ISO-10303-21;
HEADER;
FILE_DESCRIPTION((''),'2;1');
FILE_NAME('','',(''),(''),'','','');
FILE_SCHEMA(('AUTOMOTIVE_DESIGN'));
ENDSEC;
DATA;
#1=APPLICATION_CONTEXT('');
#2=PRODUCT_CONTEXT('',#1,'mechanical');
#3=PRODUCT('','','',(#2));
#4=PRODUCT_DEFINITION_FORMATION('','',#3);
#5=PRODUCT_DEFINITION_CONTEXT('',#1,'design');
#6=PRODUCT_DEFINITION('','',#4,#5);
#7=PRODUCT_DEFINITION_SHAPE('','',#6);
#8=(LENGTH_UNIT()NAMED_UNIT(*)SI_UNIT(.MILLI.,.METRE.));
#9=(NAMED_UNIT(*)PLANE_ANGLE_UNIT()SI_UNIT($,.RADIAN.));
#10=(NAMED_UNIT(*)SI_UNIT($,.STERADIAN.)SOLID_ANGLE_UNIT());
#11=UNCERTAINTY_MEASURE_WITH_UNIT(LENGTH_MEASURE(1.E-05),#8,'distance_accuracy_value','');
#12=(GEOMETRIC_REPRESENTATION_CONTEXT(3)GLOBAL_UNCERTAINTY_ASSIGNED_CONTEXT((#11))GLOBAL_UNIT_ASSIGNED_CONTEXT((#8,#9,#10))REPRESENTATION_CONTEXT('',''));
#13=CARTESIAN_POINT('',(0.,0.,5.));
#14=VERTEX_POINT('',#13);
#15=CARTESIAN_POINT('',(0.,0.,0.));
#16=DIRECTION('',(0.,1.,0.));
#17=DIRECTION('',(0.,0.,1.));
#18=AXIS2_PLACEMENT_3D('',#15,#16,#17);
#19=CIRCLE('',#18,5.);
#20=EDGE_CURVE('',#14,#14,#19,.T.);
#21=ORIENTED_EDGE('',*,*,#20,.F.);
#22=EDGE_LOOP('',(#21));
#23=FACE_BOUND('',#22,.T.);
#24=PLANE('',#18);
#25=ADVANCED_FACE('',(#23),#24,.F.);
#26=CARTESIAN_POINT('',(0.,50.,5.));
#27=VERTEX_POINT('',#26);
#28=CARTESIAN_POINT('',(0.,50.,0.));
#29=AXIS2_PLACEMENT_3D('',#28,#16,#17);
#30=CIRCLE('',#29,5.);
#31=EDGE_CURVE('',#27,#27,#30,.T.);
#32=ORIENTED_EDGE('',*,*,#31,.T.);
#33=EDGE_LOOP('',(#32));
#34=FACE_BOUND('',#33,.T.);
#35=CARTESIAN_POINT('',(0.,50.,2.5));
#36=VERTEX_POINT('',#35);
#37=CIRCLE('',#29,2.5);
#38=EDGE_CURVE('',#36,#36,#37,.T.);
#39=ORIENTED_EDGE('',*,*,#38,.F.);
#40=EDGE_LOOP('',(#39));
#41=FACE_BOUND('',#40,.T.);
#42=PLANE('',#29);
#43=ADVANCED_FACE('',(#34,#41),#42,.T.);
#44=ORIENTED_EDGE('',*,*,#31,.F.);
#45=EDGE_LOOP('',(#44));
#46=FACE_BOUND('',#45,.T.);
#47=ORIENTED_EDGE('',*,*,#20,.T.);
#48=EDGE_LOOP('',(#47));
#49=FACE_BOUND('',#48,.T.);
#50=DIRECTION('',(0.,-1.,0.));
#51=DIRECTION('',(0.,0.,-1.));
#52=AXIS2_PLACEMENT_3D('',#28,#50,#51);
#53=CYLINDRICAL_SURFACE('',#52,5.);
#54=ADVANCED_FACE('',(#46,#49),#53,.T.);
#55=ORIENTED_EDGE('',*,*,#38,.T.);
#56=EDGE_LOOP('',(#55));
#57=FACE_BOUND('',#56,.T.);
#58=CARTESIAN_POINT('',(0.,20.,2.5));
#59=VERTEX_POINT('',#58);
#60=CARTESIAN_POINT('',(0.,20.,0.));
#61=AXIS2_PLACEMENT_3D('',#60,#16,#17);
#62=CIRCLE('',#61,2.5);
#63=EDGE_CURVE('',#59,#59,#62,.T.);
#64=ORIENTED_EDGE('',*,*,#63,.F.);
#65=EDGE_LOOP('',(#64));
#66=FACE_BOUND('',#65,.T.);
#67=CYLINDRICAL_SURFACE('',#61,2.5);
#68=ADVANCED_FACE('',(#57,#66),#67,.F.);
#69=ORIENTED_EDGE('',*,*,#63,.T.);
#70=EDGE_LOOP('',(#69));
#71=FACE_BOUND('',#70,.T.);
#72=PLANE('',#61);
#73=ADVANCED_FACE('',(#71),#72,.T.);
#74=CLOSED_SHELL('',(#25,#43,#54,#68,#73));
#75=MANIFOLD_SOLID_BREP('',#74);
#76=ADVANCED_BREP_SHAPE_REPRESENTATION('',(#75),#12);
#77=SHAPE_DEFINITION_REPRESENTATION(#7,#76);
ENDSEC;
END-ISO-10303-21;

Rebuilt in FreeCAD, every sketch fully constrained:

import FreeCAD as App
import Part
import Sketcher
from FreeCAD import Vector
Q = App.Units.Quantity

doc = App.newDocument("Part")
params = doc.addObject("Spreadsheet::Sheet", "Params")
for row, (alias, value) in enumerate([
    ("sketch1_diameter", "10 mm"),
    ("pad1_length", "50 mm"),
    ("sketch2_diameter", "5 mm"),
    ("pocket1_length", "30 mm"),
], start=1):
    params.set(f"A{row}", alias)
    params.set(f"B{row}", "=" + value)
    params.setAlias(f"B{row}", alias)

body = doc.addObject("PartDesign::Body", "Body")

# Sketch on XZ plane
sketch1 = body.newObject("Sketcher::SketchObject", "Sketch")
sketch1.AttachmentSupport = (doc.getObject("XZ_Plane"), [""])
sketch1.MapMode = "FlatFace"
sketch1.addGeometry(Part.Circle(Vector(0, 0, 0), Vector(0, 0, 1), 5), False)
sketch1.addConstraint([
    Sketcher.Constraint("Coincident", 0, 3, -1, 1),
    Sketcher.Constraint("Diameter", 0, Q("10 mm")),
])
sketch1.setExpression("Constraints[1]", "Params.sketch1_diameter")
pad1 = body.newObject("PartDesign::Pad", "Pad")
pad1.Profile = sketch1
pad1.setExpression("Length", "Params.pad1_length")
pad1.Reversed = True

# Sketch on XZ plane
sketch2 = body.newObject("Sketcher::SketchObject", "Sketch001")
sketch2.AttachmentSupport = (doc.getObject("XZ_Plane"), [""])
sketch2.MapMode = "FlatFace"
sketch2.AttachmentOffset = App.Placement(Vector(0, 0, -50), App.Rotation())
sketch2.addGeometry(Part.Circle(Vector(0, 0, 0), Vector(0, 0, 1), 2.5), False)
sketch2.addConstraint([
    Sketcher.Constraint("Coincident", 0, 3, -1, 1),
    Sketcher.Constraint("Diameter", 0, Q("5 mm")),
])
sketch2.setExpression("Constraints[1]", "Params.sketch2_diameter")
pocket1 = body.newObject("PartDesign::Pocket", "Pocket")
pocket1.Profile = sketch2
pocket1.setExpression("Length", "Params.pocket1_length")
pocket1.Reversed = True

doc.recompute()
